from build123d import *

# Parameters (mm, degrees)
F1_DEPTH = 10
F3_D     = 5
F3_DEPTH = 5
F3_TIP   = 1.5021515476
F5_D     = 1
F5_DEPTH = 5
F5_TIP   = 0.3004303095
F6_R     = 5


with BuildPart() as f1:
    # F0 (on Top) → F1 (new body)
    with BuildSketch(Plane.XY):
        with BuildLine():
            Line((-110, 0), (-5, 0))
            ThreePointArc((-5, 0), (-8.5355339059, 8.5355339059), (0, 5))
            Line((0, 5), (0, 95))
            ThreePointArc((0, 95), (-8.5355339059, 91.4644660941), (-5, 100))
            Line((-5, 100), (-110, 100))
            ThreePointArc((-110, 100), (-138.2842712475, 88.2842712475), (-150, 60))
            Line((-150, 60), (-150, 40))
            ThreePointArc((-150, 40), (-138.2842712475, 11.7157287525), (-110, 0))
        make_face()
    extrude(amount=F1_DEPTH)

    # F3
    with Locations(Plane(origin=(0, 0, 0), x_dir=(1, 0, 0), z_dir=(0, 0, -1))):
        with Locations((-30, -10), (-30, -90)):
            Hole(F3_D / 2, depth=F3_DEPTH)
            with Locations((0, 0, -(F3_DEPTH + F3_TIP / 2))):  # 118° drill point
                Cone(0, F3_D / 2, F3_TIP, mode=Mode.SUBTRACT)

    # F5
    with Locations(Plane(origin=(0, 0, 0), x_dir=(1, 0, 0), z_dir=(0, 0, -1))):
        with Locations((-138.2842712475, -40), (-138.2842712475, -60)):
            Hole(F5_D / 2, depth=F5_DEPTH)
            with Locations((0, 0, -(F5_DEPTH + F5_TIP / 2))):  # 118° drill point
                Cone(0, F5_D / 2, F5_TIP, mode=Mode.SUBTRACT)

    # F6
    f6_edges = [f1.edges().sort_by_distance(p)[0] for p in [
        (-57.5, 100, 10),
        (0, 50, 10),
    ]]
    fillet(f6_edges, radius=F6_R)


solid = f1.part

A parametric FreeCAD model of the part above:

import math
import FreeCAD as App
import Part
import Sketcher


def edges_at(feature, points):
    """Names of the edges that pass closest to the given points."""
    edges = feature.Shape.Edges
    near = lambda p: min(range(len(edges)), key=lambda i: edges[i].distToShape(Part.Vertex(*p))[0])
    return sorted({f"Edge{near(p) + 1}" for p in points})

doc = App.newDocument("Part")
body = doc.addObject("PartDesign::Body", "Body")

sketch1 = body.newObject("Sketcher::SketchObject", "Sketch")
sketch1.AttachmentSupport = (doc.getObject("XY_Plane"), [""])
sketch1.MapMode = "FlatFace"
sketch1.addGeometry(Part.LineSegment(App.Vector(-110, 0, 0), App.Vector(-5, 0, 0)), False)
sketch1.addGeometry(Part.ArcOfCircle(Part.Circle(App.Vector(-5, 5, 0), App.Vector(0, 0, 1), 5), math.radians(0), math.radians(270)), False)
sketch1.addGeometry(Part.LineSegment(App.Vector(0, 5, 0), App.Vector(0, 95, 0)), False)
sketch1.addGeometry(Part.ArcOfCircle(Part.Circle(App.Vector(-5, 95, 0), App.Vector(0, 0, 1), 5), math.radians(90), math.radians(360)), False)
sketch1.addGeometry(Part.LineSegment(App.Vector(-5, 100, 0), App.Vector(-110, 100, 0)), False)
sketch1.addGeometry(Part.ArcOfCircle(Part.Circle(App.Vector(-110, 60, 0), App.Vector(0, 0, 1), 40), math.radians(90), math.radians(180)), False)
sketch1.addGeometry(Part.LineSegment(App.Vector(-150, 60, 0), App.Vector(-150, 40, 0)), False)
sketch1.addGeometry(Part.ArcOfCircle(Part.Circle(App.Vector(-110, 40, 0), App.Vector(0, 0, 1), 40), math.radians(180), math.radians(270)), False)
sketch1.addConstraint(Sketcher.Constraint("Tangent", 0, 2, 1, 2))
sketch1.addConstraint(Sketcher.Constraint("Tangent", 1, 1, 2, 1))
sketch1.addConstraint(Sketcher.Constraint("Tangent", 2, 2, 3, 2))
sketch1.addConstraint(Sketcher.Constraint("Tangent", 3, 1, 4, 1))
sketch1.addConstraint(Sketcher.Constraint("Tangent", 4, 2, 5, 1))
sketch1.addConstraint(Sketcher.Constraint("Tangent", 5, 2, 6, 1))
sketch1.addConstraint(Sketcher.Constraint("Tangent", 6, 2, 7, 1))
sketch1.addConstraint(Sketcher.Constraint("Tangent", 7, 2, 0, 1))
sketch1.addConstraint(Sketcher.Constraint("Horizontal", 0))
sketch1.addConstraint(Sketcher.Constraint("Vertical", 2))
sketch1.addConstraint(Sketcher.Constraint("Horizontal", 4))
sketch1.addConstraint(Sketcher.Constraint("Vertical", 6))
sketch1.addConstraint(Sketcher.Constraint("Equal", 1, 3))
sketch1.addConstraint(Sketcher.Constraint("Equal", 5, 7))
sketch1.addConstraint(Sketcher.Constraint("PointOnObject", 0, 2, -1))
sketch1.addConstraint(Sketcher.Constraint("PointOnObject", 1, 1, -2))
sketch1.addConstraint(Sketcher.Constraint("Radius", 1, 5.0))
sketch1.addConstraint(Sketcher.Constraint("Radius", 5, 40.0))
sketch1.addConstraint(Sketcher.Constraint("DistanceX", 0, 1, 0, 2, 105.0))
sketch1.addConstraint(Sketcher.Constraint("DistanceY", 2, 1, 2, 2, 90.0))
pad1 = body.newObject("PartDesign::Pad", "Pad")
pad1.Profile = sketch1
pad1.Length = 10

sketch2 = body.newObject("Sketcher::SketchObject", "Sketch001")
sketch2.AttachmentSupport = (doc.getObject("XY_Plane"), [""])
sketch2.MapMode = "FlatFace"
sketch2.addGeometry(Part.Circle(App.Vector(-30, 10, 0), App.Vector(0, 0, 1), 2.5), False)
sketch2.addGeometry(Part.Circle(App.Vector(-30, 90, 0), App.Vector(0, 0, 1), 2.5), False)
sketch2.addConstraint(Sketcher.Constraint("Equal", 0, 1))
sketch2.addConstraint(Sketcher.Constraint("Vertical", 0, 3, 1, 3))
sketch2.addConstraint(Sketcher.Constraint("Diameter", 0, 5.0))
sketch2.addConstraint(Sketcher.Constraint("DistanceX", 0, 3, -1, 1, 30.0))
sketch2.addConstraint(Sketcher.Constraint("DistanceY", -1, 1, 0, 3, 10.0))
sketch2.addConstraint(Sketcher.Constraint("DistanceY", -1, 1, 1, 3, 90.0))
doc.recompute()
hole = body.newObject("PartDesign::Hole", "Hole")
hole.Profile = sketch2
hole.ThreadType = "None"
hole.Diameter = 5
hole.DepthType = "Dimension"
hole.Depth = 5
hole.DrillPoint = "Angled"
hole.DrillPointAngle = 118
hole.Reversed = True

sketch3 = body.newObject("Sketcher::SketchObject", "Sketch002")
sketch3.AttachmentSupport = (doc.getObject("XY_Plane"), [""])
sketch3.MapMode = "FlatFace"
sketch3.addGeometry(Part.Circle(App.Vector(-138.3, 40, 0), App.Vector(0, 0, 1), 0.5), False)
sketch3.addGeometry(Part.Circle(App.Vector(-138.3, 60, 0), App.Vector(0, 0, 1), 0.5), False)
sketch3.addConstraint(Sketcher.Constraint("Equal", 0, 1))
sketch3.addConstraint(Sketcher.Constraint("Vertical", 0, 3, 1, 3))
sketch3.addConstraint(Sketcher.Constraint("Diameter", 0, 1.0))
sketch3.addConstraint(Sketcher.Constraint("DistanceY", -1, 1, 0, 3, 40.0))
sketch3.addConstraint(Sketcher.Constraint("DistanceY", -1, 1, 1, 3, 60.0))
sketch3.addConstraint(Sketcher.Constraint("DistanceX", 0, 3, -1, 1, 138.284271))
doc.recompute()
hole2 = body.newObject("PartDesign::Hole", "Hole001")
hole2.Profile = sketch3
hole2.ThreadType = "None"
hole2.Diameter = 1
hole2.DepthType = "Dimension"
hole2.Depth = 5
hole2.DrillPoint = "Angled"
hole2.DrillPointAngle = 118
hole2.Reversed = True
doc.recompute()

fillet = body.newObject("PartDesign::Fillet", "Fillet")
fillet.Base = (hole2, edges_at(hole2, [(-57.5, 100, 10), (0, 50, 10)]))
fillet.Radius = 5

doc.recompute()
